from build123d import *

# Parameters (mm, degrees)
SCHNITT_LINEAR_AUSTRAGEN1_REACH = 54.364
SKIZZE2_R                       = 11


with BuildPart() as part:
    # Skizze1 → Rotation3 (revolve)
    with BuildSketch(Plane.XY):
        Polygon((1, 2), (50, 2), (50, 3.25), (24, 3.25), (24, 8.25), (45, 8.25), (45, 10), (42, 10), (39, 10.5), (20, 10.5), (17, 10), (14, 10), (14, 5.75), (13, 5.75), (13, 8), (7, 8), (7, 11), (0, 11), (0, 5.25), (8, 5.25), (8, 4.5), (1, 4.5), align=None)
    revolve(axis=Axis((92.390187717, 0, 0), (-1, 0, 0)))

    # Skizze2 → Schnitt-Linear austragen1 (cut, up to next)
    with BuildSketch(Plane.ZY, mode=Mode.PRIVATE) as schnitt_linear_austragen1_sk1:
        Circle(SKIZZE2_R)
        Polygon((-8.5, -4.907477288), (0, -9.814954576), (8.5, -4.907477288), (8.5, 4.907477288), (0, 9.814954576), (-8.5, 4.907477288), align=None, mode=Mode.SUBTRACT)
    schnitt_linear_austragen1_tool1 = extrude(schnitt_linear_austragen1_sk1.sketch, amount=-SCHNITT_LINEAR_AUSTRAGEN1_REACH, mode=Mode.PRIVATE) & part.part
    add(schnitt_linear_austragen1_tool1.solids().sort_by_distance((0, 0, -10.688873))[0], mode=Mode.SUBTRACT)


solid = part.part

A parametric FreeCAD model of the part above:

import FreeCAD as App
import Part
import Sketcher
from FreeCAD import Vector
Q = App.Units.Quantity

doc = App.newDocument("Part")
params = doc.addObject("Spreadsheet::Sheet", "Params")
for row, (alias, value) in enumerate([
    ("sketch1_width", "49 mm"),
    ("sketch1_width2", "26 mm"),
    ("sketch1_width3", "21 mm"),
    ("sketch1_width4", "3 mm"),
    ("sketch1_width5", "19 mm"),
    ("revolution_angle", "360 deg"),
    ("sketch2_diameter", "22 mm"),
    ("pocket1_length", "7 mm"),
], start=1):
    params.set(f"A{row}", alias)
    params.set(f"B{row}", "=" + value)
    params.setAlias(f"B{row}", alias)

body = doc.addObject("PartDesign::Body", "Body")

# Sketch on XY plane
sketch1 = body.newObject("Sketcher::SketchObject", "Sketch")
sketch1.AttachmentSupport = (doc.getObject("XY_Plane"), [""])
sketch1.MapMode = "FlatFace"
sketch1.addGeometry([
    Part.LineSegment(Vector(1, 2, 0), Vector(50, 2, 0)),  # 0
    Part.LineSegment(Vector(50, 2, 0), Vector(50, 3.2, 0)),  # 1
    Part.LineSegment(Vector(50, 3.2, 0), Vector(24, 3.2, 0)),  # 2
    Part.LineSegment(Vector(24, 3.2, 0), Vector(24, 8.2, 0)),  # 3
    Part.LineSegment(Vector(24, 8.2, 0), Vector(45, 8.2, 0)),  # 4
    Part.LineSegment(Vector(45, 8.2, 0), Vector(45, 10, 0)),  # 5
    Part.LineSegment(Vector(45, 10, 0), Vector(42, 10, 0)),  # 6
    Part.LineSegment(Vector(42, 10, 0), Vector(39, 10.5, 0)),  # 7
    Part.LineSegment(Vector(39, 10.5, 0), Vector(20, 10.5, 0)),  # 8
    Part.LineSegment(Vector(20, 10.5, 0), Vector(17, 10, 0)),  # 9
    Part.LineSegment(Vector(17, 10, 0), Vector(14, 10, 0)),  # 10
    Part.LineSegment(Vector(14, 10, 0), Vector(14, 5.8, 0)),  # 11
    Part.LineSegment(Vector(14, 5.8, 0), Vector(13, 5.8, 0)),  # 12
    Part.LineSegment(Vector(13, 5.8, 0), Vector(13, 8, 0)),  # 13
    Part.LineSegment(Vector(13, 8, 0), Vector(7, 8, 0)),  # 14
    Part.LineSegment(Vector(7, 8, 0), Vector(7, 11, 0)),  # 15
    Part.LineSegment(Vector(7, 11, 0), Vector(0, 11, 0)),  # 16
    Part.LineSegment(Vector(0, 11, 0), Vector(0, 5.2, 0)),  # 17
    Part.LineSegment(Vector(0, 5.2, 0), Vector(8, 5.2, 0)),  # 18
    Part.LineSegment(Vector(8, 5.2, 0), Vector(8, 4.5, 0)),  # 19
    Part.LineSegment(Vector(8, 4.5, 0), Vector(1, 4.5, 0)),  # 20
    Part.LineSegment(Vector(1, 4.5, 0), Vector(1, 2, 0)),  # 21
], False)
sketch1.addConstraint([
    Sketcher.Constraint("Coincident", 0, 2, 1, 1),
    Sketcher.Constraint("Coincident", 1, 2, 2, 1),
    Sketcher.Constraint("Coincident", 2, 2, 3, 1),
    Sketcher.Constraint("Coincident", 3, 2, 4, 1),
    Sketcher.Constraint("Coincident", 4, 2, 5, 1),
    Sketcher.Constraint("Coincident", 5, 2, 6, 1),
    Sketcher.Constraint("Coincident", 6, 2, 7, 1),
    Sketcher.Constraint("Coincident", 7, 2, 8, 1),
    Sketcher.Constraint("Coincident", 8, 2, 9, 1),
    Sketcher.Constraint("Coincident", 9, 2, 10, 1),
    Sketcher.Constraint("Coincident", 10, 2, 11, 1),
    Sketcher.Constraint("Coincident", 11, 2, 12, 1),
    Sketcher.Constraint("Coincident", 12, 2, 13, 1),
    Sketcher.Constraint("Coincident", 13, 2, 14, 1),
    Sketcher.Constraint("Coincident", 14, 2, 15, 1),
    Sketcher.Constraint("Coincident", 15, 2, 16, 1),
    Sketcher.Constraint("Coincident", 16, 2, 17, 1),
    Sketcher.Constraint("Coincident", 17, 2, 18, 1),
    Sketcher.Constraint("Coincident", 18, 2, 19, 1),
    Sketcher.Constraint("Coincident", 19, 2, 20, 1),
    Sketcher.Constraint("Coincident", 20, 2, 21, 1),
    Sketcher.Constraint("Coincident", 21, 2, 0, 1),
    Sketcher.Constraint("Horizontal", 0),
    Sketcher.Constraint("Vertical", 1),
    Sketcher.Constraint("Horizontal", 2),
    Sketcher.Constraint("Vertical", 3),
    Sketcher.Constraint("Horizontal", 4),
    Sketcher.Constraint("Vertical", 5),
    Sketcher.Constraint("Horizontal", 6),
    Sketcher.Constraint("Horizontal", 8),
    Sketcher.Constraint("Horizontal", 10),
    Sketcher.Constraint("Vertical", 11),
    Sketcher.Constraint("Horizontal", 12),
    Sketcher.Constraint("Vertical", 13),
    Sketcher.Constraint("Horizontal", 14),
    Sketcher.Constraint("Vertical", 15),
    Sketcher.Constraint("Horizontal", 16),
    Sketcher.Constraint("Vertical", 17),
    Sketcher.Constraint("Horizontal", 18),
    Sketcher.Constraint("Vertical", 19),
    Sketcher.Constraint("Horizontal", 20),
    Sketcher.Constraint("Vertical", 21),
    Sketcher.Constraint("PointOnObject", 16, 2, -2),
    Sketcher.Constraint("Horizontal", 6, 2, 9, 2),
    Sketcher.Constraint("Equal", 6, 10),
    Sketcher.Constraint("Equal", 16, 20),
    Sketcher.Constraint("Equal", 10, 15),
    Sketcher.Constraint("Equal", 7, 9),
    Sketcher.Constraint("DistanceX", 0, 1, 0, 2, Q("49 mm")),
    Sketcher.Constraint("DistanceX", 2, 2, 2, 1, Q("26 mm")),
    Sketcher.Constraint("DistanceX", 4, 1, 4, 2, Q("21 mm")),
    Sketcher.Constraint("DistanceX", 6, 2, 6, 1, Q("3 mm")),
    Sketcher.Constraint("DistanceX", 8, 2, 8, 1, Q("19 mm")),
    Sketcher.Constraint("DistanceX", 12, 2, 12, 1, Q("1 mm")),
    Sketcher.Constraint("DistanceX", 14, 2, 14, 1, Q("6 mm")),
    Sketcher.Constraint("DistanceX", 16, 2, 16, 1, Q("7 mm")),
    Sketcher.Constraint("DistanceX", 18, 1, 18, 2, Q("8 mm")),
    Sketcher.Constraint("DistanceY", 3, 1, 3, 2, Q("5 mm")),
    Sketcher.Constraint("DistanceY", 21, 2, 21, 1, Q("2.5 mm")),
    Sketcher.Constraint("DistanceY", -1, 1, 0, 2, Q("2 mm")),
    Sketcher.Constraint("DistanceY", -1, 1, 5, 2, Q("10 mm")),
    Sketcher.Constraint("DistanceY", -1, 1, 13, 2, Q("8 mm")),
    Sketcher.Constraint("DistanceY", 1, 1, 1, 2, Q("1.25 mm")),
    Sketcher.Constraint("DistanceY", 11, 2, 11, 1, Q("4.25 mm")),
    Sketcher.Constraint("DistanceY", 17, 2, 17, 1, Q("5.75 mm")),
    Sketcher.Constraint("DistanceY", -1, 1, 7, 2, Q("10.5 mm")),
])
sketch1.setExpression("Constraints[48]", "Params.sketch1_width")
sketch1.setExpression("Constraints[49]", "Params.sketch1_width2")
sketch1.setExpression("Constraints[50]", "Params.sketch1_width3")
sketch1.setExpression("Constraints[51]", "Params.sketch1_width4")
sketch1.setExpression("Constraints[52]", "Params.sketch1_width5")
revolution = body.newObject("PartDesign::Revolution", "Revolution")
revolution.Profile = sketch1
revolution.ReferenceAxis = (sketch1, ["H_Axis"])
revolution.setExpression("Angle", "Params.revolution_angle")

# Sketch on YZ plane
sketch2 = body.newObject("Sketcher::SketchObject", "Sketch001")
sketch2.AttachmentSupport = (doc.getObject("YZ_Plane"), [""])
sketch2.MapMode = "FlatFace"
sketch2.addGeometry([
    Part.Circle(Vector(0, 0, 0), Vector(0, 0, 1), 11),  # 0
    Part.LineSegment(Vector(-10, 0, 0), Vector(-5, -8, 0)),  # 1
    Part.LineSegment(Vector(-5, -8, 0), Vector(5, -8, 0)),  # 2
    Part.LineSegment(Vector(5, -8, 0), Vector(10, 0, 0)),  # 3
    Part.LineSegment(Vector(10, 0, 0), Vector(5, 8, 0)),  # 4
    Part.LineSegment(Vector(5, 8, 0), Vector(-5, 8, 0)),  # 5
    Part.LineSegment(Vector(-5, 8, 0), Vector(-10, 0, 0)),  # 6
], False)
sketch2.addConstraint([
    Sketcher.Constraint("Coincident", 1, 2, 2, 1),
    Sketcher.Constraint("Coincident", 2, 2, 3, 1),
    Sketcher.Constraint("Coincident", 3, 2, 4, 1),
    Sketcher.Constraint("Coincident", 4, 2, 5, 1),
    Sketcher.Constraint("Coincident", 5, 2, 6, 1),
    Sketcher.Constraint("Coincident", 6, 2, 1, 1),
    Sketcher.Constraint("Horizontal", 2),
    Sketcher.Constraint("Horizontal", 5),
    Sketcher.Constraint("Coincident", 0, 3, -1, 1),
    Sketcher.Constraint("Symmetric", 1, 2, 4, 2, -1, 1),
    Sketcher.Constraint("Symmetric", 3, 2, 6, 2, -1, 1),
    Sketcher.Constraint("PointOnObject", 3, 2, -1),
    Sketcher.Constraint("Parallel", 3, 6),
    Sketcher.Constraint("Vertical", 2, 2, 4, 2),
    Sketcher.Constraint("Diameter", 0, Q("22 mm")),
    Sketcher.Constraint("Angle", 1, Q("-60 deg")),
    Sketcher.Constraint("DistanceY", 2, 2, 4, 2, Q("17 mm")),
    Sketcher.Constraint("DistanceX", 2, 1, 2, 2, Q("9.814955 mm")),
])
sketch2.setExpression("Constraints[14]", "Params.sketch2_diameter")
pocket1 = body.newObject("PartDesign::Pocket", "Pocket")
pocket1.Profile = sketch2
pocket1.setExpression("Length", "Params.pocket1_length")
pocket1.Reversed = True

doc.recompute()
